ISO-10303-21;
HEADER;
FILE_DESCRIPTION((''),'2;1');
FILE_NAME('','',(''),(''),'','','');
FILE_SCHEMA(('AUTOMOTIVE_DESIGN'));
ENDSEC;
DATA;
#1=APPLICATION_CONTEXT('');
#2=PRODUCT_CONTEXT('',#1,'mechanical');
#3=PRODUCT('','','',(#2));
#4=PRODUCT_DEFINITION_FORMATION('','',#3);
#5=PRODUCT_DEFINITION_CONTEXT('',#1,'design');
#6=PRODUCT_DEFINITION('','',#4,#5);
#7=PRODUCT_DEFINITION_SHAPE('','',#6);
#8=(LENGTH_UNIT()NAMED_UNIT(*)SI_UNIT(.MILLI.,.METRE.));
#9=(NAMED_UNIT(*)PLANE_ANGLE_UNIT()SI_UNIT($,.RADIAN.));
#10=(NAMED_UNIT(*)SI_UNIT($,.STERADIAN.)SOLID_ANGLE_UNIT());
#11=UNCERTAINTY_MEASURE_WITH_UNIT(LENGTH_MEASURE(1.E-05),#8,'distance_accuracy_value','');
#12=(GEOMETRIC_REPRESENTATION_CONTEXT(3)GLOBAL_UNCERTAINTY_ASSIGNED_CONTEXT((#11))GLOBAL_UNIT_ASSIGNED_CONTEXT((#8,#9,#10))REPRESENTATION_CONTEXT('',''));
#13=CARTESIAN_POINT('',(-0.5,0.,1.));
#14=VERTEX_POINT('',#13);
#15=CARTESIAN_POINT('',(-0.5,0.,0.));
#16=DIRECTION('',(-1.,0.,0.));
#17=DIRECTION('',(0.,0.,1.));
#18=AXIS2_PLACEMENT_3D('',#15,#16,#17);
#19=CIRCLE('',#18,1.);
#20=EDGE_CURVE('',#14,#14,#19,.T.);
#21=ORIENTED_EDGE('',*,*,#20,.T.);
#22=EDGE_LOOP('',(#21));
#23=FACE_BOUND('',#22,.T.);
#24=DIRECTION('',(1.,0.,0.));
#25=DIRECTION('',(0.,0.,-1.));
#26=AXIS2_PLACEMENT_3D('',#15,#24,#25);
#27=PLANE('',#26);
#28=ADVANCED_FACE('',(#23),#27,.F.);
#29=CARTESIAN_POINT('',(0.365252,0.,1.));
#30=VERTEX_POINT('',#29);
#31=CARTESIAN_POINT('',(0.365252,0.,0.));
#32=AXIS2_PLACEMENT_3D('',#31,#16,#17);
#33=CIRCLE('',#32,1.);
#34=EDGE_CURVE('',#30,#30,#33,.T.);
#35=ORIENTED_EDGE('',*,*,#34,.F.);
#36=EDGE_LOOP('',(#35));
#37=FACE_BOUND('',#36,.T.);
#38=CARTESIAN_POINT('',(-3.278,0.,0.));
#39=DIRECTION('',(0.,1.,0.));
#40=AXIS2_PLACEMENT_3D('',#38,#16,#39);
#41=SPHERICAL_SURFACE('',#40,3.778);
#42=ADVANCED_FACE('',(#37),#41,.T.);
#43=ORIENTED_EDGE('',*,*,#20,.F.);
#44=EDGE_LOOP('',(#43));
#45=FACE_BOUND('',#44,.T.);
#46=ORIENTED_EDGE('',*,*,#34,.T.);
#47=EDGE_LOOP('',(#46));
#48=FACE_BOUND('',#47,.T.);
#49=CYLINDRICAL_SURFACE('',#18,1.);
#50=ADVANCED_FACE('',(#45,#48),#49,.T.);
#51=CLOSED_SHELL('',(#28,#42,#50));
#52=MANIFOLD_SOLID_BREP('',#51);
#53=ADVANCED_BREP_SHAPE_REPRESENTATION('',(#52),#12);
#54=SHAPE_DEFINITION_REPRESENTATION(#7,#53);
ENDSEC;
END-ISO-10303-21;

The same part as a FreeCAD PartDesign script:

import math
import FreeCAD as App
import Part
import Sketcher

V = App.Vector

doc = App.newDocument("Part")
body = doc.addObject("PartDesign::Body", "Body")

# Sketch on XY plane
sketch1 = body.newObject("Sketcher::SketchObject", "Sketch")
sketch1.AttachmentSupport = (doc.getObject("XY_Plane"), [""])
sketch1.MapMode = "FlatFace"
sketch1.addGeometry([
    Part.LineSegment(V(-0.5, 0, 0), V(0.5, 0, 0)),
    Part.ArcOfCircle(Part.Circle(V(-3.3, 0, 0), V(0, 0, 1), 3.8), math.radians(0), math.radians(15.35)),
    Part.LineSegment(V(0.4, 1, 0), V(-0.5, 1, 0)),
    Part.LineSegment(V(-0.5, 1, 0), V(-0.5, 0, 0)),
], False)
sketch1.addConstraint([
    Sketcher.Constraint("Coincident", 0, 2, 1, 1),
    Sketcher.Constraint("Coincident", 1, 2, 2, 1),
    Sketcher.Constraint("Coincident", 2, 2, 3, 1),
    Sketcher.Constraint("Coincident", 3, 2, 0, 1),
    Sketcher.Constraint("Horizontal", 0),
    Sketcher.Constraint("Horizontal", 2),
    Sketcher.Constraint("Vertical", 3),
    Sketcher.Constraint("Symmetric", 0, 2, 3, 2, -1, 1),
    Sketcher.Constraint("PointOnObject", 1, 3, -1),
    Sketcher.Constraint("Equal", 0, 3),
    Sketcher.Constraint("DistanceX", 0, 1, 0, 2, 1.0),
    Sketcher.Constraint("Radius", 1, 3.778),
])
revolution = body.newObject("PartDesign::Revolution", "Revolution")
revolution.Profile = sketch1
revolution.ReferenceAxis = (sketch1, ["H_Axis"])
revolution.Angle = 360

doc.recompute()
